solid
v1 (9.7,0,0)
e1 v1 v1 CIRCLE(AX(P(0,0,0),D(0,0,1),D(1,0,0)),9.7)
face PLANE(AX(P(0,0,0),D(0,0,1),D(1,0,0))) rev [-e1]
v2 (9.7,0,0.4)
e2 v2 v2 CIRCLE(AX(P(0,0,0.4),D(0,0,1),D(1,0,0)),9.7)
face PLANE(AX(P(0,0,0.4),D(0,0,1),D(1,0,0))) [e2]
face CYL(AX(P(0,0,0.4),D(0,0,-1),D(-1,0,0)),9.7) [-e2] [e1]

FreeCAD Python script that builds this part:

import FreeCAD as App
import Part
import Sketcher

V = App.Vector

doc = App.newDocument("Part")
body = doc.addObject("PartDesign::Body", "Body")

# Sketch on XY plane
sketch1 = doc.addObject("Sketcher::SketchObject", "Sketch")
body.addObject(sketch1)
sketch1.AttachmentSupport = (doc.XY_Plane, [""])
sketch1.MapMode = "FlatFace"
sketch1.addGeometry(Part.Circle(V(0, 0, 0), V(0, 0, 1), 9.7), False)
sketch1.addConstraint([
    Sketcher.Constraint("Coincident", 0, 3, -1, 1),
    Sketcher.Constraint("Diameter", 0, 19.4),
])
pad1 = doc.addObject("PartDesign::Pad", "Pad")
body.addObject(pad1)
pad1.Profile = sketch1
pad1.Length = 0.4

doc.recompute()
